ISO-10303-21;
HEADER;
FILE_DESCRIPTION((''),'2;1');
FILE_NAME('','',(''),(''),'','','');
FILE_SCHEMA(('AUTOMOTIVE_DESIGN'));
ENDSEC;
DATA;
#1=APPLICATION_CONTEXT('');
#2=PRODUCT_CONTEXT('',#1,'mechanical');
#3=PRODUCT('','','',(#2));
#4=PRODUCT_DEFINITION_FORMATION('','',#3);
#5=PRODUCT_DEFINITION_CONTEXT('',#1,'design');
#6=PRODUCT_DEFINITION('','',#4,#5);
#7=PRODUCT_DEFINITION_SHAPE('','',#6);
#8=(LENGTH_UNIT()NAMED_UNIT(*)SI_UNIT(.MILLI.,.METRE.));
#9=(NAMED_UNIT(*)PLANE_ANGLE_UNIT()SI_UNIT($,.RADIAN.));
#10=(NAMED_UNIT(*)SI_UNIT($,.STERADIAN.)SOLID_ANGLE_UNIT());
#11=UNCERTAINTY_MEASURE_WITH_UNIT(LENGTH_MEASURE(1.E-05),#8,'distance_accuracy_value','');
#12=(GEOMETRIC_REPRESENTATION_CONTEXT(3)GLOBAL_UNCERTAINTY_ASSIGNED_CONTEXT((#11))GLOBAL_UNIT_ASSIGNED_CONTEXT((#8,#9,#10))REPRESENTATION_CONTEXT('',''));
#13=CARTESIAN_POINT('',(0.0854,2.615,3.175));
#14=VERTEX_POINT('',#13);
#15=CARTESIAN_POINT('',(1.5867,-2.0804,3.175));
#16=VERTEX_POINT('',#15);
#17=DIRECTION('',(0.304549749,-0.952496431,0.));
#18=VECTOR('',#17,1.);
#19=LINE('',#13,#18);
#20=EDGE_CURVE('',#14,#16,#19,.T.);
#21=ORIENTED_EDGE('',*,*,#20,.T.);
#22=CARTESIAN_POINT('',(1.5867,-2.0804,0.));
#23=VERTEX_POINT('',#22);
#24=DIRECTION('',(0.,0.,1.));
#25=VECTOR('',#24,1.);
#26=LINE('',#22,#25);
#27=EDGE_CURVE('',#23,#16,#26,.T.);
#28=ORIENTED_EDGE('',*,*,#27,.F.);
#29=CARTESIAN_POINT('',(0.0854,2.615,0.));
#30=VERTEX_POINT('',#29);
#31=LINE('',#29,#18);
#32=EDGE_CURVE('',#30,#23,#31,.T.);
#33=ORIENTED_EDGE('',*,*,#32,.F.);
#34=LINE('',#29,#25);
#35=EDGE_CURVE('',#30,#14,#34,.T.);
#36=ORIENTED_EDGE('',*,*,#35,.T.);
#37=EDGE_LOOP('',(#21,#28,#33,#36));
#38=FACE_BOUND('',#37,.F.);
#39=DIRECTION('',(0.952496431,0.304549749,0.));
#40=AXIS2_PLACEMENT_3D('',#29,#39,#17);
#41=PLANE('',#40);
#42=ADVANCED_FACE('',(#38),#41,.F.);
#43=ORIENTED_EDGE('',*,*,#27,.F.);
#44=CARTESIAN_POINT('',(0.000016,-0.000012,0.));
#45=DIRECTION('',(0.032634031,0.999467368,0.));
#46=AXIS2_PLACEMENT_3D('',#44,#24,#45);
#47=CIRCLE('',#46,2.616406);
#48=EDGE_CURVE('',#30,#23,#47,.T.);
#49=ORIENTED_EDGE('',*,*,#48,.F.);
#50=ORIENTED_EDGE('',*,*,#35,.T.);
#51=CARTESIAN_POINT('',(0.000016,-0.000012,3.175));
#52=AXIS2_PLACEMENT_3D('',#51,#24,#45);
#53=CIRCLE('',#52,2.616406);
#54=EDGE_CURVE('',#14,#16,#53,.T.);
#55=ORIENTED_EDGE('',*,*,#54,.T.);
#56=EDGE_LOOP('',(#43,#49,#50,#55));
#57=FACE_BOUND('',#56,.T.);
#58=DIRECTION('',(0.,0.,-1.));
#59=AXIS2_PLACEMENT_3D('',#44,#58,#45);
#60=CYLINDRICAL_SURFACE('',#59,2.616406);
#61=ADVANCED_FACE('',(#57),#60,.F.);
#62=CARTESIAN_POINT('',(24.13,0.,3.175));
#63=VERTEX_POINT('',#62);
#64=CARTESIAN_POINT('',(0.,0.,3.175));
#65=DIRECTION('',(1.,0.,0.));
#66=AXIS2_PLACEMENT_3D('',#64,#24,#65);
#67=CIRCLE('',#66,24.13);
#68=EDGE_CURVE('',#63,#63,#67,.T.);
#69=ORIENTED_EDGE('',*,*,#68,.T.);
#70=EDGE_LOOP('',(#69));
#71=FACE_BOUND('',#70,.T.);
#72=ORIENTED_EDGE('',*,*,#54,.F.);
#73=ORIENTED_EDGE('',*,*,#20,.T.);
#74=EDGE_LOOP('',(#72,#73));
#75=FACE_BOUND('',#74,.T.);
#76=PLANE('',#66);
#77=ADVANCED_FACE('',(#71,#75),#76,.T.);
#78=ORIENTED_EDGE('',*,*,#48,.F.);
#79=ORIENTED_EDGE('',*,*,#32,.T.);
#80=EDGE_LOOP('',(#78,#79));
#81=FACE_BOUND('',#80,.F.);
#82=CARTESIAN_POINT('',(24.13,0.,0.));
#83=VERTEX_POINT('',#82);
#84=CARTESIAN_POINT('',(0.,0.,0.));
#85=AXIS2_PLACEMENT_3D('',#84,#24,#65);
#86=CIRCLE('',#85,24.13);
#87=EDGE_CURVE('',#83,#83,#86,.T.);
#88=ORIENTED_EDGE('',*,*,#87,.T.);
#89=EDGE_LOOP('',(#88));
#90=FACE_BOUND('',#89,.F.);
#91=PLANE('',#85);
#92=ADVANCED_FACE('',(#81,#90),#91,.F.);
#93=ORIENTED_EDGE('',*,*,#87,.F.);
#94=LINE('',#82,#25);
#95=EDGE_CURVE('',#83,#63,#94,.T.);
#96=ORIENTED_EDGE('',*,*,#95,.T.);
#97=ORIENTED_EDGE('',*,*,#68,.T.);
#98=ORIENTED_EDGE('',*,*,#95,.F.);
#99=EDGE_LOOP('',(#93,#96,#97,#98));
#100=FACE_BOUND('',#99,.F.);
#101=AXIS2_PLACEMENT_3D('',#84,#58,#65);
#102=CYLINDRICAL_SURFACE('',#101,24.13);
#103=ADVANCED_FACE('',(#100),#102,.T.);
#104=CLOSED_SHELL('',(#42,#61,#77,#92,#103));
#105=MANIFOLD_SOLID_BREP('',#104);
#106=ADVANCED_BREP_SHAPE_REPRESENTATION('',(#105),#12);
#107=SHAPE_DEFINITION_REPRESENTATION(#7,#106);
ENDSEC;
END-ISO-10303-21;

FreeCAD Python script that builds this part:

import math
import FreeCAD as App
import Part
import Sketcher
Q = App.Units.Quantity

doc = App.newDocument("Part")
params = doc.addObject("Spreadsheet::Sheet", "Params")
for row, (alias, value) in enumerate([
    ("sketch1_diameter", "1.9 in"),
    ("sketch1_radius", "0.103 in"),
    ("pad1_length", "0.125 in"),
], start=1):
    params.set(f"A{row}", alias)
    params.set(f"B{row}", "=" + value)
    params.setAlias(f"B{row}", alias)

body = doc.addObject("PartDesign::Body", "Body")

# Sketch on XY plane
sketch1 = doc.addObject("Sketcher::SketchObject", "Sketch")
body.addObject(sketch1)
sketch1.AttachmentSupport = (doc.XY_Plane, [""])
sketch1.MapMode = "FlatFace"
sketch1.addGeometry([
    Part.Circle(App.Vector(0, 0, 0), App.Vector(0, 0, 1), 24.1),
    Part.ArcOfCircle(Part.Circle(App.Vector(0, 0, 0), App.Vector(0, 0, 1), 2.6), math.radians(88), math.radians(307)),
    Part.LineSegment(App.Vector(0.1, 2.6, 0), App.Vector(1.6, -2.1, 0)),
], False)
sketch1.addConstraint([
    Sketcher.Constraint("Coincident", 1, 1, 2, 1),
    Sketcher.Constraint("Coincident", 2, 2, 1, 2),
    Sketcher.Constraint("Coincident", 0, 3, -1, 1),
    Sketcher.Constraint("Coincident", 1, 3, -1, 1),
    Sketcher.Constraint("Diameter", 0, Q("1.9 in")),
    Sketcher.Constraint("Radius", 1, Q("0.103 in")),
    Sketcher.Constraint("Angle", 2, Q("-72.269 deg")),
    Sketcher.Constraint("DistanceY", 2, 2, -1, 1, Q("0.0819 in")),
])
sketch1.setExpression("Constraints[4]", "Params.sketch1_diameter")
sketch1.setExpression("Constraints[5]", "Params.sketch1_radius")
pad1 = doc.addObject("PartDesign::Pad", "Pad")
body.addObject(pad1)
pad1.Profile = sketch1
pad1.setExpression("Length", "Params.pad1_length")

doc.recompute()
